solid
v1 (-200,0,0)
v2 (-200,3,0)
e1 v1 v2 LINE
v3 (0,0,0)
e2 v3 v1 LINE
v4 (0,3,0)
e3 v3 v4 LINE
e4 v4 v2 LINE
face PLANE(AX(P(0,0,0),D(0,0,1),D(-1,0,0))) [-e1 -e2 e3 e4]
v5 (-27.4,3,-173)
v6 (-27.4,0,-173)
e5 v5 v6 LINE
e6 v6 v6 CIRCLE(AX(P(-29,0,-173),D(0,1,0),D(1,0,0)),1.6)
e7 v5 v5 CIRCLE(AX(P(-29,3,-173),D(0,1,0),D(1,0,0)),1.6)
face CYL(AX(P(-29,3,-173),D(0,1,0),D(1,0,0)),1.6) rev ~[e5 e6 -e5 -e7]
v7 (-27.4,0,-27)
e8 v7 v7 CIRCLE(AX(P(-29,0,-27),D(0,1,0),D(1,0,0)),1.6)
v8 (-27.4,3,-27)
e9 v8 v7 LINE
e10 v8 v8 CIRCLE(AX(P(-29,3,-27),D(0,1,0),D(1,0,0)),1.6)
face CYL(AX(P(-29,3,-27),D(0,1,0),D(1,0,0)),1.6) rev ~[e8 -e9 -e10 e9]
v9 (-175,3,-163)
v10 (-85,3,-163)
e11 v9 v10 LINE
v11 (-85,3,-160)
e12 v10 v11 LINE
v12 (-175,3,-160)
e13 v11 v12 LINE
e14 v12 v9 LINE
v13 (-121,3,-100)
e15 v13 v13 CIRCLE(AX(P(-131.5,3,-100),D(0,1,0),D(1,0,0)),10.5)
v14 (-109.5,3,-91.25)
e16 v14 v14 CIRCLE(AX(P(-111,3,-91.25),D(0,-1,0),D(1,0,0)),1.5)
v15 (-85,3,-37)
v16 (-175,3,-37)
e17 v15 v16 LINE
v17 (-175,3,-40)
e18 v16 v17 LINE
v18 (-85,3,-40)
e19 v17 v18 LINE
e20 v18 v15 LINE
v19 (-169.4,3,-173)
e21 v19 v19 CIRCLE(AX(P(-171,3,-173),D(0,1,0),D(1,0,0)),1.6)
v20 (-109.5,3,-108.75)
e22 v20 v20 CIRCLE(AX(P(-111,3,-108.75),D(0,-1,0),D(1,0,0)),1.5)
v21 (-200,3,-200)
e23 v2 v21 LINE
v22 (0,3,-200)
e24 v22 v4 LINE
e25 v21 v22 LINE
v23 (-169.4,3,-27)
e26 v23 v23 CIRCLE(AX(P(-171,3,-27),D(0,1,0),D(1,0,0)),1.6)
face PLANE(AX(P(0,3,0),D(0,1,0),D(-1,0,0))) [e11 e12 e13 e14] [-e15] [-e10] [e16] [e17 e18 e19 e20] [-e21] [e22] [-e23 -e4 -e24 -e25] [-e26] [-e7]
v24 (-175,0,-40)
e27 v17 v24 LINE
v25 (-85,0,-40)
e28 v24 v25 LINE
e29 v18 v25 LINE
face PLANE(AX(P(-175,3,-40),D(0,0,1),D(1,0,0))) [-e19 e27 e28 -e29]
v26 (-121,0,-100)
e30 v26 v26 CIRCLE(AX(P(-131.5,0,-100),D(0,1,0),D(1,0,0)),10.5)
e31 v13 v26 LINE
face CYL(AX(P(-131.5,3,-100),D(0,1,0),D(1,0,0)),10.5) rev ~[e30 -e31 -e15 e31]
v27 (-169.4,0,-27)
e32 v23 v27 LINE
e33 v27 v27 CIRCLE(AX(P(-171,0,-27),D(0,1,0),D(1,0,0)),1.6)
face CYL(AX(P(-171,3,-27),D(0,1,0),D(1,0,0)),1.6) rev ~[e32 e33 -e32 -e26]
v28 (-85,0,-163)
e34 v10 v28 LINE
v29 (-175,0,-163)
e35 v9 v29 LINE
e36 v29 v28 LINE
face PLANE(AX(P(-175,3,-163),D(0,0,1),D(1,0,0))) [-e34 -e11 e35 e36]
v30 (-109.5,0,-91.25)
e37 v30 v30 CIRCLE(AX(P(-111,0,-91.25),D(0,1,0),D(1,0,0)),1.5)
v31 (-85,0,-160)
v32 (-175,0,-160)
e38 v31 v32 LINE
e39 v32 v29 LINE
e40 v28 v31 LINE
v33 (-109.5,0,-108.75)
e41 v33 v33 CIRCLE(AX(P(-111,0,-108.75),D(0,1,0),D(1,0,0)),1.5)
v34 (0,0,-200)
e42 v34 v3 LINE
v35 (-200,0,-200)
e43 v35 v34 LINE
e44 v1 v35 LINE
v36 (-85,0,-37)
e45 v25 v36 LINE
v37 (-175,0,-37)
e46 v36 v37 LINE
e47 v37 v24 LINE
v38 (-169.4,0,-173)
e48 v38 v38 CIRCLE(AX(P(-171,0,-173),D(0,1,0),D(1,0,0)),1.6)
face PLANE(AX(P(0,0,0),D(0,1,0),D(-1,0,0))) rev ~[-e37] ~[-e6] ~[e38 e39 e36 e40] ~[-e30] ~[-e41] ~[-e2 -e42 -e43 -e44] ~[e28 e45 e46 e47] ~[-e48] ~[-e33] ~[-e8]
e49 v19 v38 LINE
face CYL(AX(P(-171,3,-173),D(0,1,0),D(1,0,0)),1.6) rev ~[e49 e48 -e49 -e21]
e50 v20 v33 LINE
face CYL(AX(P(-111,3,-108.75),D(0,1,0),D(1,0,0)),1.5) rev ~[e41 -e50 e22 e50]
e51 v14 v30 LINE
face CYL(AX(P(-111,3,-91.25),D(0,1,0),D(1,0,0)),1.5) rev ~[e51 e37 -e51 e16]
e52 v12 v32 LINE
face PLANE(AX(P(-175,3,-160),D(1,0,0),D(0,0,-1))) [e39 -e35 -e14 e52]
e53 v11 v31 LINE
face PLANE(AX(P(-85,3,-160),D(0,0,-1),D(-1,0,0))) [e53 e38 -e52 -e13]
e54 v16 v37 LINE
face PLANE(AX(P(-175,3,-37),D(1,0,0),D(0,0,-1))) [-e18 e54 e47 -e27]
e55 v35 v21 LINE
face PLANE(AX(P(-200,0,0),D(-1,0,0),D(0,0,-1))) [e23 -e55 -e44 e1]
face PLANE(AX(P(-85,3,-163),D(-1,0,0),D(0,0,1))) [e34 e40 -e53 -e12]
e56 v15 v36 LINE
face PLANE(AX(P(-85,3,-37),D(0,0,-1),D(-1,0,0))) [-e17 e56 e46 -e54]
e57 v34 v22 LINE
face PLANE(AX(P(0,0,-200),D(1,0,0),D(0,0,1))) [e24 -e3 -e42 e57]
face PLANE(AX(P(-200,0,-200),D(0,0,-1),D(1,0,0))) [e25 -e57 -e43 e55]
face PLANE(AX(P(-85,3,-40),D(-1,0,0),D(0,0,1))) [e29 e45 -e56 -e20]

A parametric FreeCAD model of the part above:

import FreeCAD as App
import Part
import Sketcher

V = App.Vector

doc = App.newDocument("Part")
body = doc.addObject("PartDesign::Body", "Body")

sketch1 = body.newObject("Sketcher::SketchObject", "Sketch")
sketch1.AttachmentSupport = (doc.getObject("XZ_Plane"), [""])
sketch1.MapMode = "FlatFace"
sketch1.addGeometry([
    Part.LineSegment(V(-200, 0, 0), V(0, 0, 0)),
    Part.LineSegment(V(0, 0, 0), V(0, -200, 0)),
    Part.LineSegment(V(0, -200, 0), V(-200, -200, 0)),
    Part.LineSegment(V(-200, -200, 0), V(-200, 0, 0)),
], False)
sketch1.addConstraint([
    Sketcher.Constraint("Coincident", 0, 2, 1, 1),
    Sketcher.Constraint("Coincident", 1, 2, 2, 1),
    Sketcher.Constraint("Coincident", 2, 2, 3, 1),
    Sketcher.Constraint("Coincident", 3, 2, 0, 1),
    Sketcher.Constraint("Horizontal", 0),
    Sketcher.Constraint("Vertical", 1),
    Sketcher.Constraint("Horizontal", 2),
    Sketcher.Constraint("Vertical", 3),
    Sketcher.Constraint("Coincident", 0, 2, -1, 1),
    Sketcher.Constraint("Equal", 2, 1),
    Sketcher.Constraint("DistanceX", 0, 1, 0, 2, 200.0),
])
pad1 = body.newObject("PartDesign::Pad", "Pad")
pad1.Profile = sketch1
pad1.Length = 3
pad1.Reversed = True

sketch2 = body.newObject("Sketcher::SketchObject", "Sketch001")
sketch2.AttachmentSupport = (doc.getObject("XZ_Plane"), [""])
sketch2.MapMode = "FlatFace"
sketch2.AttachmentOffset = App.Placement(V(0, 0, -3), App.Rotation())
sketch2.addGeometry([
    Part.LineSegment(V(-175, -40, 0), V(-175, -37, 0)),
    Part.LineSegment(V(-175, -37, 0), V(-85, -37, 0)),
    Part.LineSegment(V(-85, -37, 0), V(-85, -40, 0)),
    Part.LineSegment(V(-85, -40, 0), V(-175, -40, 0)),
    Part.LineSegment(V(-175, -163, 0), V(-175, -160, 0)),
    Part.LineSegment(V(-175, -160, 0), V(-85, -160, 0)),
    Part.LineSegment(V(-85, -160, 0), V(-85, -163, 0)),
    Part.LineSegment(V(-85, -163, 0), V(-175, -163, 0)),
], False)
sketch2.addConstraint([
    Sketcher.Constraint("Coincident", 0, 2, 1, 1),
    Sketcher.Constraint("Coincident", 1, 2, 2, 1),
    Sketcher.Constraint("Coincident", 2, 2, 3, 1),
    Sketcher.Constraint("Coincident", 3, 2, 0, 1),
    Sketcher.Constraint("Coincident", 4, 2, 5, 1),
    Sketcher.Constraint("Coincident", 5, 2, 6, 1),
    Sketcher.Constraint("Coincident", 6, 2, 7, 1),
    Sketcher.Constraint("Coincident", 7, 2, 4, 1),
    Sketcher.Constraint("Vertical", 0),
    Sketcher.Constraint("Horizontal", 1),
    Sketcher.Constraint("Vertical", 2),
    Sketcher.Constraint("Horizontal", 3),
    Sketcher.Constraint("Vertical", 4),
    Sketcher.Constraint("Horizontal", 5),
    Sketcher.Constraint("Vertical", 6),
    Sketcher.Constraint("Horizontal", 7),
    Sketcher.Constraint("Vertical", 3, 2, 4, 2),
    Sketcher.Constraint("Vertical", 2, 2, 5, 2),
    Sketcher.Constraint("Equal", 2, 4),
    Sketcher.Constraint("DistanceX", 1, 1, 1, 2, 90.0),
    Sketcher.Constraint("DistanceY", 0, 1, 0, 2, 3.0),
    Sketcher.Constraint("DistanceX", 1, 2, -1, 1, 85.0),
    Sketcher.Constraint("DistanceY", 4, 2, 3, 2, 120.0),
    Sketcher.Constraint("DistanceY", 0, 2, -1, 1, 37.0),
])
pocket1 = body.newObject("PartDesign::Pocket", "Pocket")
pocket1.Profile = sketch2
pocket1.Length = 3
pocket1.Reversed = True

sketch3 = body.newObject("Sketcher::SketchObject", "Sketch002")
sketch3.AttachmentSupport = (doc.getObject("XZ_Plane"), [""])
sketch3.MapMode = "FlatFace"
sketch3.AttachmentOffset = App.Placement(V(0, 0, -3), App.Rotation())
sketch3.addGeometry(Part.Circle(V(-131.5, -100, 0), V(0, 0, 1), 10.5), False)
sketch3.addConstraint([
    Sketcher.Constraint("Diameter", 0, 21.0),
    Sketcher.Constraint("DistanceY", 0, 3, -1, 1, 100.0),
    Sketcher.Constraint("DistanceX", 0, 3, -1, 1, 131.5),
])
pocket2 = body.newObject("PartDesign::Pocket", "Pocket001")
pocket2.Profile = sketch3
pocket2.Length = 10
pocket2.Reversed = True

sketch4 = body.newObject("Sketcher::SketchObject", "Sketch003")
sketch4.AttachmentSupport = (doc.getObject("XZ_Plane"), [""])
sketch4.MapMode = "FlatFace"
sketch4.AttachmentOffset = App.Placement(V(0, 0, -3), App.Rotation())
sketch4.addGeometry([
    Part.Circle(V(-111, -91.25, 0), V(0, 0, 1), 1.5),
    Part.Circle(V(-111, -108.75, 0), V(0, 0, 1), 1.5),
], False)
sketch4.addConstraint([
    Sketcher.Constraint("Equal", 0, 1),
    Sketcher.Constraint("Vertical", 0, 3, 1, 3),
    Sketcher.Constraint("Diameter", 0, 3.0),
    Sketcher.Constraint("DistanceY", 1, 3, 0, 3, 17.5),
    Sketcher.Constraint("DistanceX", 0, 3, -1, 1, 111.0),
    Sketcher.Constraint("DistanceY", 0, 3, -1, 1, 91.25),
])
pocket3 = body.newObject("PartDesign::Pocket", "Pocket002")
pocket3.Profile = sketch4
pocket3.Length = 10
pocket3.Reversed = True

sketch5 = body.newObject("Sketcher::SketchObject", "Sketch004")
sketch5.AttachmentSupport = (doc.getObject("XZ_Plane"), [""])
sketch5.MapMode = "FlatFace"
sketch5.AttachmentOffset = App.Placement(V(0, 0, -3), App.Rotation())
sketch5.addGeometry([
    Part.Circle(V(-171, -27, 0), V(0, 0, 1), 1.6),
    Part.Circle(V(-171, -173, 0), V(0, 0, 1), 1.6),
    Part.Circle(V(-29, -27, 0), V(0, 0, 1), 1.6),
    Part.Circle(V(-29, -173, 0), V(0, 0, 1), 1.6),
], False)
sketch5.addConstraint([
    Sketcher.Constraint("Equal", 0, 1),
    Sketcher.Constraint("Equal", 1, 2),
    Sketcher.Constraint("Equal", 2, 3),
    Sketcher.Constraint("Horizontal", 0, 3, 2, 3),
    Sketcher.Constraint("Horizontal", 1, 3, 3, 3),
    Sketcher.Constraint("Vertical", 0, 3, 1, 3),
    Sketcher.Constraint("Vertical", 2, 3, 3, 3),
    Sketcher.Constraint("Diameter", 0, 3.2),
    Sketcher.Constraint("DistanceX", 0, 3, -1, 1, 171.0),
    Sketcher.Constraint("DistanceY", 0, 3, -1, 1, 27.0),
    Sketcher.Constraint("DistanceY", 1, 3, -1, 1, 173.0),
    Sketcher.Constraint("DistanceX", 2, 3, -1, 1, 29.0),
])
pocket4 = body.newObject("PartDesign::Pocket", "Pocket003")
pocket4.Profile = sketch5
pocket4.Length = 10
pocket4.Reversed = True

doc.recompute()
